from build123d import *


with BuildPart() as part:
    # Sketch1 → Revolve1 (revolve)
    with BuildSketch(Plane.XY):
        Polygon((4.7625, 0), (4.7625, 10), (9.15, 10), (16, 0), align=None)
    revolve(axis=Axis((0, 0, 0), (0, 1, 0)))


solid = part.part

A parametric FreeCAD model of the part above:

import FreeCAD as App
import Part
import Sketcher

V = App.Vector

doc = App.newDocument("Part")
params = doc.addObject("Spreadsheet::Sheet", "Params")
for row, (alias, value) in enumerate([
    ("sketch1_height", "10 mm"),
    ("revolution_angle", "360 deg"),
], start=1):
    params.set(f"A{row}", alias)
    params.set(f"B{row}", "=" + value)
    params.setAlias(f"B{row}", alias)

body = doc.addObject("PartDesign::Body", "Body")

# Sketch on XY plane
sketch1 = doc.addObject("Sketcher::SketchObject", "Sketch")
body.addObject(sketch1)
sketch1.AttachmentSupport = (doc.XY_Plane, [""])
sketch1.MapMode = "FlatFace"
sketch1.addGeometry([
    Part.LineSegment(V(4.7625, 10, 0), V(4.7625, 0, 0)),
    Part.LineSegment(V(4.7625, 0, 0), V(16, 0, 0)),
    Part.LineSegment(V(16, 0, 0), V(9.15, 10, 0)),
    Part.LineSegment(V(9.15, 10, 0), V(4.7625, 10, 0)),
], False)
sketch1.addConstraint([
    Sketcher.Constraint("Coincident", 0, 2, 1, 1),
    Sketcher.Constraint("Coincident", 1, 2, 2, 1),
    Sketcher.Constraint("Coincident", 2, 2, 3, 1),
    Sketcher.Constraint("Coincident", 3, 2, 0, 1),
    Sketcher.Constraint("Vertical", 0),
    Sketcher.Constraint("Horizontal", 1),
    Sketcher.Constraint("Horizontal", 3),
    Sketcher.Constraint("PointOnObject", 0, 2, -1),
    Sketcher.Constraint("DistanceY", 0, 2, 0, 1, 10.0),
    Sketcher.Constraint("DistanceX", -1, 1, 1, 2, 16.0),
    Sketcher.Constraint("DistanceX", -1, 1, 2, 2, 9.15),
    Sketcher.Constraint("DistanceX", 1, 1, 1, 2, 11.2375),
])
sketch1.setExpression("Constraints[8]", "Params.sketch1_height")
revolution = doc.addObject("PartDesign::Revolution", "Revolution")
body.addObject(revolution)
revolution.Profile = sketch1
revolution.ReferenceAxis = (sketch1, ["V_Axis"])
revolution.setExpression("Angle", "Params.revolution_angle")

doc.recompute()
